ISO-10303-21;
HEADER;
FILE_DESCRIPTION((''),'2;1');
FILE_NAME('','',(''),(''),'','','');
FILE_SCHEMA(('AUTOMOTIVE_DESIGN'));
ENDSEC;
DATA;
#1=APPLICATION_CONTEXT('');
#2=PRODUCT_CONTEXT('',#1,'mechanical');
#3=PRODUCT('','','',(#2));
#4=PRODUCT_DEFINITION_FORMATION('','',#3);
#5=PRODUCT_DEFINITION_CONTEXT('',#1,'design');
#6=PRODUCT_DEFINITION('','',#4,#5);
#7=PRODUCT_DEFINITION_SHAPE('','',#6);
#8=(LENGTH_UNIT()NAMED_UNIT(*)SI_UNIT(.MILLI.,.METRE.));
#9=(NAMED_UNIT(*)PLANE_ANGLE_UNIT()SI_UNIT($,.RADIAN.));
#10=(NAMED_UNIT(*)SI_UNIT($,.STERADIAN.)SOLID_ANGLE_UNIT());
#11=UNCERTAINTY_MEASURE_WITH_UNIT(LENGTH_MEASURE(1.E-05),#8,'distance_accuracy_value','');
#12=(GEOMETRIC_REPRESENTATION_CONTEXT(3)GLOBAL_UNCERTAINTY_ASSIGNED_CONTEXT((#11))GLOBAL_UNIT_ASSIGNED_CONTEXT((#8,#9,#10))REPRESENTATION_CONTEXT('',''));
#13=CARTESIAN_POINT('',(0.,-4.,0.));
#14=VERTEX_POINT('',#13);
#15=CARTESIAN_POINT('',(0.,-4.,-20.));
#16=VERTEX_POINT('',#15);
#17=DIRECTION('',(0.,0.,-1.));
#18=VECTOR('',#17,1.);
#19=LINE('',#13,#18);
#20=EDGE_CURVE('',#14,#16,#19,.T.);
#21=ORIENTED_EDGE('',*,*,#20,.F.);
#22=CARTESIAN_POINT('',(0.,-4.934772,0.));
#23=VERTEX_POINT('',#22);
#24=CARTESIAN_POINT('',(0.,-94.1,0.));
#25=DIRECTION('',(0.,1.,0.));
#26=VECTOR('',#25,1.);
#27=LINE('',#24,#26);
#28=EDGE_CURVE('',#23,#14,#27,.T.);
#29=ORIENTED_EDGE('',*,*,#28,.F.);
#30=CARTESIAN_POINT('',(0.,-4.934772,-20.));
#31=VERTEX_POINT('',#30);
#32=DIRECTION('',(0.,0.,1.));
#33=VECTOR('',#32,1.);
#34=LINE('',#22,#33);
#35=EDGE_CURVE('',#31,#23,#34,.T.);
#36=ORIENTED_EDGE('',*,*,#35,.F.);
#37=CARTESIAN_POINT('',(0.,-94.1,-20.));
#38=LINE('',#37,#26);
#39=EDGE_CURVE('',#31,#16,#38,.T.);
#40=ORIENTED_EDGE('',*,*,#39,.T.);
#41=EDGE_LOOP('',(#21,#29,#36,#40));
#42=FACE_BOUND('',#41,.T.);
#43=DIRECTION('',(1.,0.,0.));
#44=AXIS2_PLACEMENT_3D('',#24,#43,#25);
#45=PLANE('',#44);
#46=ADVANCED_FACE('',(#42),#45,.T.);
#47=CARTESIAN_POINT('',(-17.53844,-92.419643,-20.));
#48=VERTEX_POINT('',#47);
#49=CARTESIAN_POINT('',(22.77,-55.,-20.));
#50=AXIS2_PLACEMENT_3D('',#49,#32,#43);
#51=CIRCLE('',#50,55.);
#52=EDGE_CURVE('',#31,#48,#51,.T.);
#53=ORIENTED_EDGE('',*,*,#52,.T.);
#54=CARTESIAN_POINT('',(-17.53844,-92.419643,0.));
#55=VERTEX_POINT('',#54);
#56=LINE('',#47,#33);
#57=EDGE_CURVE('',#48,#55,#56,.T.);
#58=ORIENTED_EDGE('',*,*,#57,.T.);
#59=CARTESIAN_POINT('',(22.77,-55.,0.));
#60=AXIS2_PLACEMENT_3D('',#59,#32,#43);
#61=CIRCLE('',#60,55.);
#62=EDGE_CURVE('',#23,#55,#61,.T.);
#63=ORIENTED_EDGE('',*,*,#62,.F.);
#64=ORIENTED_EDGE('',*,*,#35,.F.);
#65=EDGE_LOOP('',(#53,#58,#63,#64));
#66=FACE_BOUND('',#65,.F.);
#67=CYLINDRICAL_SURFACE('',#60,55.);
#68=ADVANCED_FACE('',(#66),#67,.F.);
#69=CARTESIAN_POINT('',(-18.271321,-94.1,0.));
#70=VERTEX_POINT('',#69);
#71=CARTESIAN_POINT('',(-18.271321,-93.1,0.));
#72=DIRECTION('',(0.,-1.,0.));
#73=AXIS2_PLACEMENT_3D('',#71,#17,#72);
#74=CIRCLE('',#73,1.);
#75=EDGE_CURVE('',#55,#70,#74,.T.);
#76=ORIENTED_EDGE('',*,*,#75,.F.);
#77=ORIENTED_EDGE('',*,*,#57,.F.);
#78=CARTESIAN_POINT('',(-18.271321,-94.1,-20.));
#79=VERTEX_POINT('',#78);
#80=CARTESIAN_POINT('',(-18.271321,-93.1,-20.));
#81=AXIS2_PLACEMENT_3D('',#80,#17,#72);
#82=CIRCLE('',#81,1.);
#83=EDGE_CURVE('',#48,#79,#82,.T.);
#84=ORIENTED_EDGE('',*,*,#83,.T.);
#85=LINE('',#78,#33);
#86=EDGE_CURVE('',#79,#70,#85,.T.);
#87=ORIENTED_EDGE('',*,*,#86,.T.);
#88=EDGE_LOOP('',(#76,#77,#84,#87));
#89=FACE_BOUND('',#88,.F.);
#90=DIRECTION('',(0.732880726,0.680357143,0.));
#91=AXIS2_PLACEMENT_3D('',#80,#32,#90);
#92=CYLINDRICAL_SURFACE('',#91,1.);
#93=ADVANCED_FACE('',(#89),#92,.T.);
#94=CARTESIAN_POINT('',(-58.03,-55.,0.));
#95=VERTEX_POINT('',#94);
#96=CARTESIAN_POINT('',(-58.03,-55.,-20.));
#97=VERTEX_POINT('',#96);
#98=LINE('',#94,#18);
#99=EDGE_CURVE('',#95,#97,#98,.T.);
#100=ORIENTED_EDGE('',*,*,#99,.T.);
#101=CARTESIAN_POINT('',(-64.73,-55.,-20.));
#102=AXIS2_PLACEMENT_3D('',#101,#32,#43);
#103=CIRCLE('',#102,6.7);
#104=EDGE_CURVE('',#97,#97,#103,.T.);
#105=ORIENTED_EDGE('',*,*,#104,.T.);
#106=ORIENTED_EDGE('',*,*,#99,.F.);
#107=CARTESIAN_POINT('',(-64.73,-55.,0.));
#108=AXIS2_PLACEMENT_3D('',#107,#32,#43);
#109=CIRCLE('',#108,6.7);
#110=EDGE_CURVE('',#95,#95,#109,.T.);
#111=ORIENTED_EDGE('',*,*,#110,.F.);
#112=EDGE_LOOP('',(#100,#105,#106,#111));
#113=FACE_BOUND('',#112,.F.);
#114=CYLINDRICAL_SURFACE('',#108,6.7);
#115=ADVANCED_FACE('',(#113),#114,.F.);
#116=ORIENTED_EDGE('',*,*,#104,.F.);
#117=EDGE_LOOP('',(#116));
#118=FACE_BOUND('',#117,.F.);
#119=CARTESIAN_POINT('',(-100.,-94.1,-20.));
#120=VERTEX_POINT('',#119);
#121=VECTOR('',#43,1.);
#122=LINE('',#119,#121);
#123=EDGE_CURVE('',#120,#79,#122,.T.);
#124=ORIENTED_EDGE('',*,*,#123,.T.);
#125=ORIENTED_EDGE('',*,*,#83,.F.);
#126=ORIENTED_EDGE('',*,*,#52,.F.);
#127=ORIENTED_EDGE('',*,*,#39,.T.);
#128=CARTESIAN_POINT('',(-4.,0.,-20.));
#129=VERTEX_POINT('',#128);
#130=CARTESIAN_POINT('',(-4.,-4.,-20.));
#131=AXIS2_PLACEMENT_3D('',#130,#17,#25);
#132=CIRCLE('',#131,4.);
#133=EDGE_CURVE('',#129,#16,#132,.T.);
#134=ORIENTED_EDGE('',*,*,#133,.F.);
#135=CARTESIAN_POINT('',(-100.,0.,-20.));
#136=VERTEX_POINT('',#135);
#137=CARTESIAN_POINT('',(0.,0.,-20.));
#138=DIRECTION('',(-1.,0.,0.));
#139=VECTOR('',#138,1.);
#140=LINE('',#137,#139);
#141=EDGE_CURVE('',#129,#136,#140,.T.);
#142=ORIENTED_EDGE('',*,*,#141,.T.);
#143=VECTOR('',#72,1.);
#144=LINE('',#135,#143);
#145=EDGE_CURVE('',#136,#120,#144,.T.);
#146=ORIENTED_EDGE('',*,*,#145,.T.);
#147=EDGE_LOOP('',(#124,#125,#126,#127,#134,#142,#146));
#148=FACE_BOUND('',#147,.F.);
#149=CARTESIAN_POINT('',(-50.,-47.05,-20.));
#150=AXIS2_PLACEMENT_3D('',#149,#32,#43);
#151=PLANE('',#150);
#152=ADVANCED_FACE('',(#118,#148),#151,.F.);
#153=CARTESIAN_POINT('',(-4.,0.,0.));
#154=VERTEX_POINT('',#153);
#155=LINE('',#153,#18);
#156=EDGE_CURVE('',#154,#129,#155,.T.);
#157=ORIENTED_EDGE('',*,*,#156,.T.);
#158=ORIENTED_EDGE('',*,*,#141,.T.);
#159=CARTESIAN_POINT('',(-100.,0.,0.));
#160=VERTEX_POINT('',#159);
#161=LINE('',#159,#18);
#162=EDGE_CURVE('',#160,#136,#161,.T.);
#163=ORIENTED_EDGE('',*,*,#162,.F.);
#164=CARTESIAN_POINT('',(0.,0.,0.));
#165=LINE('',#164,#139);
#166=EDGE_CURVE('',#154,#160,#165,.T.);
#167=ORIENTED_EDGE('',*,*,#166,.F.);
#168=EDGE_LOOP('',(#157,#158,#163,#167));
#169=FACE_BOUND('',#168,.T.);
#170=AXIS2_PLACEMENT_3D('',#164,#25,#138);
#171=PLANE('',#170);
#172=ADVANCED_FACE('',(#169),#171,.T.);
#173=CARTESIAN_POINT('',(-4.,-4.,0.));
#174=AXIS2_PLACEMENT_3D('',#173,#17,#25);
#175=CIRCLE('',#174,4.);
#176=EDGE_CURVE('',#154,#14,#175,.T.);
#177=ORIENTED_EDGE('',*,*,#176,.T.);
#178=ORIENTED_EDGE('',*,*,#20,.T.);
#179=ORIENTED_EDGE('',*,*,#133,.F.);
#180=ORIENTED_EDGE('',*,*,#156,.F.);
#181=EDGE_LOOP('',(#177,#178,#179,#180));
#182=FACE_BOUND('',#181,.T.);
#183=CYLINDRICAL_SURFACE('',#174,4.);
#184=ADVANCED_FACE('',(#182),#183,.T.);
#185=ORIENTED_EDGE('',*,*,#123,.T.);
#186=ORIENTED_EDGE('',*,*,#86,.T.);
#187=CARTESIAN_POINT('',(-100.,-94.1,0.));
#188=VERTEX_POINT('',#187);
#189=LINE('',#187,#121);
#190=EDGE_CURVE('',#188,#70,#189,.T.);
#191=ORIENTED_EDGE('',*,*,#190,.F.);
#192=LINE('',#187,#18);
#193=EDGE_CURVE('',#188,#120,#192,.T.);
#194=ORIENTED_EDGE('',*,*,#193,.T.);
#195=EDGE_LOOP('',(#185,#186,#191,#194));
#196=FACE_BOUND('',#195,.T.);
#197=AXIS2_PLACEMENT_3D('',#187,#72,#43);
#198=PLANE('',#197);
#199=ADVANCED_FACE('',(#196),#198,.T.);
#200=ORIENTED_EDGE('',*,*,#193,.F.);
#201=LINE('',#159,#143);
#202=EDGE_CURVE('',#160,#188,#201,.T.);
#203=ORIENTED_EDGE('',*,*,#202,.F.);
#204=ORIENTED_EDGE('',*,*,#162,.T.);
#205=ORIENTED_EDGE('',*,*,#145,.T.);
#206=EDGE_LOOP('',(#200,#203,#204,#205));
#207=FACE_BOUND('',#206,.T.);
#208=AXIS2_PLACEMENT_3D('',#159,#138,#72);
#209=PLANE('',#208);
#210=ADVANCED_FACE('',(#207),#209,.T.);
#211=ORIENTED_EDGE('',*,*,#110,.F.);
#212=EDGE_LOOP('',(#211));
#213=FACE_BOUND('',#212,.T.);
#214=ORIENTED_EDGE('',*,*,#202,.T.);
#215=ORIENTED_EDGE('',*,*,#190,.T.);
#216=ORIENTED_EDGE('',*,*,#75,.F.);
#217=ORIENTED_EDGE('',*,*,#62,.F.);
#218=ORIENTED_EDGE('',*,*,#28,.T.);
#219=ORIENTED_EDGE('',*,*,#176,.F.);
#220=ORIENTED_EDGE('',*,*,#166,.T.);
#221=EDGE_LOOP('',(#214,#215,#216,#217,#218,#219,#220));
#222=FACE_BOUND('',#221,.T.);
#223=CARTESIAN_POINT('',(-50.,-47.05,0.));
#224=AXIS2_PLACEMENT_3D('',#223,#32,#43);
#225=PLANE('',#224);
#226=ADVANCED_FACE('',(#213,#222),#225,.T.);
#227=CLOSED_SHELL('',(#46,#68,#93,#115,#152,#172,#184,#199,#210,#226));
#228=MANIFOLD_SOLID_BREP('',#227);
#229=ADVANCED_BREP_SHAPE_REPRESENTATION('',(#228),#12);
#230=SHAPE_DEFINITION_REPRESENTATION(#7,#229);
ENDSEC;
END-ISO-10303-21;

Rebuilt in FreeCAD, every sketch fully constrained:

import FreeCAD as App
import Part
import Sketcher


def edges_at(feature, points):
    """Names of the edges that pass closest to the given points."""
    edges = feature.Shape.Edges
    near = lambda p: min(range(len(edges)), key=lambda i: edges[i].distToShape(Part.Vertex(*p))[0])
    return sorted({f"Edge{near(p) + 1}" for p in points})


def add_polygon(sketch, points):
    """Adds a closed chain of lines whose ends are joined by coincident constraints."""
    first, n = sketch.GeometryCount, len(points)
    for a, b in zip(points, points[1:] + points[:1]):
        sketch.addGeometry(Part.LineSegment(App.Vector(*a, 0), App.Vector(*b, 0)), False)
    for i in range(n):
        sketch.addConstraint(Sketcher.Constraint("Coincident", first + i, 2, first + (i + 1) % n, 1))

doc = App.newDocument("Part")
body = doc.addObject("PartDesign::Body", "Body")

# Sketch on XY plane
sketch1 = doc.addObject("Sketcher::SketchObject", "Sketch")
body.addObject(sketch1)
sketch1.AttachmentSupport = (doc.XY_Plane, [""])
sketch1.MapMode = "FlatFace"
add_polygon(sketch1, [(0, -94.1), (0, 0), (-100, 0), (-100, -94.1)])  # lines 0-3
sketch1.addConstraint([
    Sketcher.Constraint("Vertical", 0),
    Sketcher.Constraint("Horizontal", 1),
    Sketcher.Constraint("Vertical", 2),
    Sketcher.Constraint("Horizontal", 3),
    Sketcher.Constraint("Coincident", 0, 2, -1, 1),
    Sketcher.Constraint("DistanceX", 1, 2, 1, 1, 100.0),
    Sketcher.Constraint("DistanceY", 0, 1, 0, 2, 94.1),
])
pad1 = doc.addObject("PartDesign::Pad", "Pad")
body.addObject(pad1)
pad1.Profile = sketch1
pad1.Length = 20
pad1.Reversed = True

# Sketch on XY plane
sketch2 = doc.addObject("Sketcher::SketchObject", "Sketch001")
body.addObject(sketch2)
sketch2.AttachmentSupport = (doc.XY_Plane, [""])
sketch2.MapMode = "FlatFace"
sketch2.addGeometry([
    Part.Circle(App.Vector(-64.73, -55, 0), App.Vector(0, 0, 1), 6.7),
    Part.Circle(App.Vector(22.77, -55, 0), App.Vector(0, 0, 1), 55),
], False)
sketch2.addConstraint([
    Sketcher.Constraint("Horizontal", 0, 3, 1, 3),
    Sketcher.Constraint("Diameter", 1, 110.0),
    Sketcher.Constraint("Diameter", 0, 13.4),
    Sketcher.Constraint("DistanceY", 0, 3, -1, 1, 55.0),
    Sketcher.Constraint("DistanceX", 0, 3, 1, 3, 87.5),
    Sketcher.Constraint("DistanceX", 0, 3, -1, 1, 64.73),
])
pocket1 = doc.addObject("PartDesign::Pocket", "Pocket")
body.addObject(pocket1)
pocket1.Profile = sketch2
pocket1.Length = 20
doc.recompute()

fillet = doc.addObject("PartDesign::Fillet", "Fillet")
body.addObject(fillet)
fillet.Base = (pocket1, edges_at(pocket1, [(0, 0, -10)]))
fillet.Radius = 4
doc.recompute()

fillet2 = doc.addObject("PartDesign::Fillet", "Fillet001")
body.addObject(fillet2)
fillet2.Base = (fillet, edges_at(fillet, [(-15.911, -94.1, -10)]))
fillet2.Radius = 1

doc.recompute()
